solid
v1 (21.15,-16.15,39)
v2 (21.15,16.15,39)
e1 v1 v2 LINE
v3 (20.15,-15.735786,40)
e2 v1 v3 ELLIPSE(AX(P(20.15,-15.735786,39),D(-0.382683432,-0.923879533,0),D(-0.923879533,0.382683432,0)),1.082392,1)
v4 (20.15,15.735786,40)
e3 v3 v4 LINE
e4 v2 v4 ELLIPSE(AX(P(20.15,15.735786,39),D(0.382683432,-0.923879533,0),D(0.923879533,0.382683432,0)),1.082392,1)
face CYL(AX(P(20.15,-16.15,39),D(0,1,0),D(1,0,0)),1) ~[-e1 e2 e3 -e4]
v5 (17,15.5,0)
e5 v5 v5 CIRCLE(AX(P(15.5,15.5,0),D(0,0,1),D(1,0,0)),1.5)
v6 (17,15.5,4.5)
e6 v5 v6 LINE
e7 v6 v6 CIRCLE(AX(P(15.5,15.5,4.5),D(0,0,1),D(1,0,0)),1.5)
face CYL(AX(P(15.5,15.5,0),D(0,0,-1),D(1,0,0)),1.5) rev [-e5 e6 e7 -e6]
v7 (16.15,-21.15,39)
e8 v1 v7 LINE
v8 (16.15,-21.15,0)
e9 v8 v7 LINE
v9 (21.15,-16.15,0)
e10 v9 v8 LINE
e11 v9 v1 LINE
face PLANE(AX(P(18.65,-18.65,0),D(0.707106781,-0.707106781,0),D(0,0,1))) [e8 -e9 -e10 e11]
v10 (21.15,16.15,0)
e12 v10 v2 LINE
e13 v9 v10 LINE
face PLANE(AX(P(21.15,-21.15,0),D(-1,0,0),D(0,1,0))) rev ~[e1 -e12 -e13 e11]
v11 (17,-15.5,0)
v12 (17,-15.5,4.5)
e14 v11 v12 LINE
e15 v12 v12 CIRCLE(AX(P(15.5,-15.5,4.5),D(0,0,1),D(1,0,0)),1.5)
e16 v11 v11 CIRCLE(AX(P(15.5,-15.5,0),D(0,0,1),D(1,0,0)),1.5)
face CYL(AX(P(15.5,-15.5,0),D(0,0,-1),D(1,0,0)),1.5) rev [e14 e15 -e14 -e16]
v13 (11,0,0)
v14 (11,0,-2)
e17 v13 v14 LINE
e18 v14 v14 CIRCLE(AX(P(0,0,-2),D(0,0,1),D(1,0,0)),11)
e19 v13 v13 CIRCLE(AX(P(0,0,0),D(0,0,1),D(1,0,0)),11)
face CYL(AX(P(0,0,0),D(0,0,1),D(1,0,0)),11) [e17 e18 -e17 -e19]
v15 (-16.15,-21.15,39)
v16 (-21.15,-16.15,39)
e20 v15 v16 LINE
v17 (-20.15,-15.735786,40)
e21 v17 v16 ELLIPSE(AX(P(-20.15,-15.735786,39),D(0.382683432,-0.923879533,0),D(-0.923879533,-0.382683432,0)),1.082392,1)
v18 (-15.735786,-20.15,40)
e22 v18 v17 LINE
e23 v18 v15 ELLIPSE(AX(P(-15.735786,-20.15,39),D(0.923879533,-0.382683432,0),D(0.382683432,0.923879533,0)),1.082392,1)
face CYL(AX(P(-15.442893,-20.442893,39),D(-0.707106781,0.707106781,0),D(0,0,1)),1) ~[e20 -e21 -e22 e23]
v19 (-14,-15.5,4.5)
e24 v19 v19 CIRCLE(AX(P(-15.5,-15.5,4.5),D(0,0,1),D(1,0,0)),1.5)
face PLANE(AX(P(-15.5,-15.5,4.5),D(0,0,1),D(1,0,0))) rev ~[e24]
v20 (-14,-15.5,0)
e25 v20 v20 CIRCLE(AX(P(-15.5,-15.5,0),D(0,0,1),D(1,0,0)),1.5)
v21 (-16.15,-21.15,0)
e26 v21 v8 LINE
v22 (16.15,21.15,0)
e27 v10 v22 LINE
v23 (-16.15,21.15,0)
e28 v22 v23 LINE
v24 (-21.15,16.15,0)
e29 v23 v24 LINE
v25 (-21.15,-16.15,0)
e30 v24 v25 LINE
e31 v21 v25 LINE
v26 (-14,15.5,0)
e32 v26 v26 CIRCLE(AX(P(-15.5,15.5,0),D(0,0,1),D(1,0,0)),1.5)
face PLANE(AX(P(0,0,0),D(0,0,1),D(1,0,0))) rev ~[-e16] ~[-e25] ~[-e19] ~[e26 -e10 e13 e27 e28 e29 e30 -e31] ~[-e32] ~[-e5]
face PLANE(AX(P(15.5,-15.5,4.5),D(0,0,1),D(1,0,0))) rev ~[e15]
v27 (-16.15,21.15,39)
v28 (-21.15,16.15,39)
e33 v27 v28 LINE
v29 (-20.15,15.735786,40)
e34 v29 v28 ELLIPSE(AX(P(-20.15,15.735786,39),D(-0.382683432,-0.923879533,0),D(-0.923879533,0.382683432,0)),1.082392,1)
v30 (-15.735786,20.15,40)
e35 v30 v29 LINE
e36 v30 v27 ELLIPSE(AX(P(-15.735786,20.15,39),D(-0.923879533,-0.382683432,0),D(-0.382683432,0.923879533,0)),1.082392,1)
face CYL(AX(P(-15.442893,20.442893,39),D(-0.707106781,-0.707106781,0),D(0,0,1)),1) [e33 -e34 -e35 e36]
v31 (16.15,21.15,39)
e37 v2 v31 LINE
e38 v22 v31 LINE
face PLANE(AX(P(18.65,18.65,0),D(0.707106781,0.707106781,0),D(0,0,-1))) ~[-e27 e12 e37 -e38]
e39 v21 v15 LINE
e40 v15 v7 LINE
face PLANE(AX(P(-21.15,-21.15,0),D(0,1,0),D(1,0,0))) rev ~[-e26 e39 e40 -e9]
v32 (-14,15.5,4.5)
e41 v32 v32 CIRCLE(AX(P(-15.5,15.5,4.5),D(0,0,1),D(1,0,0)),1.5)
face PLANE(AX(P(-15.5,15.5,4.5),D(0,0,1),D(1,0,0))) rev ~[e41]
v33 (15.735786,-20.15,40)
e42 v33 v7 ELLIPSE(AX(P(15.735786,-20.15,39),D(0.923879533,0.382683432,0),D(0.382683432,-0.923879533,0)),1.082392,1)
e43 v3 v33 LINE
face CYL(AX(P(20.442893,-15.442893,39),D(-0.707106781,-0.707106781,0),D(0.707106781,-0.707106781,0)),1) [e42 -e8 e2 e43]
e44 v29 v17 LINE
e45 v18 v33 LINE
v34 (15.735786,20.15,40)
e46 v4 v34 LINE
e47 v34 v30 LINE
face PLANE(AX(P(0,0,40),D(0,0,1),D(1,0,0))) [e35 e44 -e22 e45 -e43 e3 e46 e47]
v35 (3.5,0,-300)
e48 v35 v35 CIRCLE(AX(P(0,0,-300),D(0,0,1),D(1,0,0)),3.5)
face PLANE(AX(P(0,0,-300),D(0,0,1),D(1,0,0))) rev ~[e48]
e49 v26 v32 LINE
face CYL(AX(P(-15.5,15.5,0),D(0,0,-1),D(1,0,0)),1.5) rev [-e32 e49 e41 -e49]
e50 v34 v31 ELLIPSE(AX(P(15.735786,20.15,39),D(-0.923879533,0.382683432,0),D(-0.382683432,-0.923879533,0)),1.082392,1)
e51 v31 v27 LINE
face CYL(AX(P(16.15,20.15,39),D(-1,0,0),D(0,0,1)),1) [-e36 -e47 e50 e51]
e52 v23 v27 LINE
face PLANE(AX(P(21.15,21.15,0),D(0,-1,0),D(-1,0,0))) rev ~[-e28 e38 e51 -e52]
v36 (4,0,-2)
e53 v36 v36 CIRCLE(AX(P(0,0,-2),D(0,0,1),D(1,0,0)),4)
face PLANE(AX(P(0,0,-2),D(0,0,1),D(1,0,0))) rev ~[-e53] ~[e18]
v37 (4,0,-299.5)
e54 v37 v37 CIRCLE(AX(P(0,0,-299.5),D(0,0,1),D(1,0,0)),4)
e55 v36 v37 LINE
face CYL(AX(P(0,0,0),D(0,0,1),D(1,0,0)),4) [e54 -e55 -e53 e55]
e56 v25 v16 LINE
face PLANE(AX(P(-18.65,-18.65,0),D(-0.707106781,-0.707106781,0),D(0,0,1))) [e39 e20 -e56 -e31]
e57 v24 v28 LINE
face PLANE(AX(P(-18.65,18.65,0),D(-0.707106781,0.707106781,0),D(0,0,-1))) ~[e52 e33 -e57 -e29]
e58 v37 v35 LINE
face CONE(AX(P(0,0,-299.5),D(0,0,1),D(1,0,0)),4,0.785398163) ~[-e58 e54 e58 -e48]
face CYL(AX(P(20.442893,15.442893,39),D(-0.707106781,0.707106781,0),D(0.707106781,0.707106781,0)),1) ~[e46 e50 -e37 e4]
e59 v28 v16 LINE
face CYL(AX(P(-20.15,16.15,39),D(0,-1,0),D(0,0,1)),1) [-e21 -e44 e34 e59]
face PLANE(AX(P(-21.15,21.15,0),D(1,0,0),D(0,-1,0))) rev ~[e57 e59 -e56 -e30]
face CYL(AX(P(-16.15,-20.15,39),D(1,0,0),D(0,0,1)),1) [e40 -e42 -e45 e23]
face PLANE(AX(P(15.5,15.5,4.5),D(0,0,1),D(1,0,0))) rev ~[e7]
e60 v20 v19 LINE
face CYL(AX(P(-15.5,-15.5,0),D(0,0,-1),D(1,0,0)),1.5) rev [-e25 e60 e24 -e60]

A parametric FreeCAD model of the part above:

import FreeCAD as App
import Part
import Sketcher

V = App.Vector
Q = App.Units.Quantity


def edges_at(feature, points):
    """Names of the edges that pass closest to the given points."""
    edges = feature.Shape.Edges
    near = lambda p: min(range(len(edges)), key=lambda i: edges[i].distToShape(Part.Vertex(*p))[0])
    return sorted({f"Edge{near(p) + 1}" for p in points})

doc = App.newDocument("Part")
body = doc.addObject("PartDesign::Body", "Body")

# Sketch on XY plane
sketch1 = body.newObject("Sketcher::SketchObject", "Sketch")
sketch1.AttachmentSupport = (doc.getObject("XY_Plane"), [""])
sketch1.MapMode = "FlatFace"
sketch1.addGeometry([
    Part.LineSegment(V(-21, -21, 0), V(21, -21, 0)),
    Part.LineSegment(V(21, -21, 0), V(21, 21, 0)),
    Part.LineSegment(V(21, 21, 0), V(-21, 21, 0)),
    Part.LineSegment(V(-21, 21, 0), V(-21, -21, 0)),
], False)
sketch1.addConstraint([
    Sketcher.Constraint("Coincident", 0, 2, 1, 1),
    Sketcher.Constraint("Coincident", 1, 2, 2, 1),
    Sketcher.Constraint("Coincident", 2, 2, 3, 1),
    Sketcher.Constraint("Coincident", 3, 2, 0, 1),
    Sketcher.Constraint("Horizontal", 0),
    Sketcher.Constraint("Vertical", 1),
    Sketcher.Constraint("Horizontal", 2),
    Sketcher.Constraint("Vertical", 3),
    Sketcher.Constraint("Symmetric", 0, 2, 2, 2, -1, 1),
    Sketcher.Constraint("Equal", 2, 1),
    Sketcher.Constraint("DistanceX", 0, 1, 0, 2, Q("42.3 mm")),
])
pad1 = body.newObject("PartDesign::Pad", "Pad")
pad1.Profile = sketch1
pad1.Length = 40

# Sketch on XY plane
sketch2 = body.newObject("Sketcher::SketchObject", "Sketch001")
sketch2.AttachmentSupport = (doc.getObject("XY_Plane"), [""])
sketch2.MapMode = "FlatFace"
sketch2.addGeometry(Part.Circle(V(0, 0, 0), V(0, 0, 1), 11), False)
sketch2.addConstraint([
    Sketcher.Constraint("Coincident", 0, 3, -1, 1),
    Sketcher.Constraint("Diameter", 0, Q("22 mm")),
])
pad2 = body.newObject("PartDesign::Pad", "Pad001")
pad2.Profile = sketch2
pad2.Length = 2
pad2.Reversed = True

# Sketch on XY plane
sketch3 = body.newObject("Sketcher::SketchObject", "Sketch002")
sketch3.AttachmentSupport = (doc.getObject("XY_Plane"), [""])
sketch3.MapMode = "FlatFace"
sketch3.addGeometry(Part.Circle(V(0, 0, 0), V(0, 0, 1), 4), False)
sketch3.addConstraint([
    Sketcher.Constraint("Coincident", 0, 3, -1, 1),
    Sketcher.Constraint("Diameter", 0, Q("8 mm")),
])
pad3 = body.newObject("PartDesign::Pad", "Pad002")
pad3.Profile = sketch3
pad3.Length = 300
pad3.Reversed = True

# Sketch on XY plane
sketch4 = body.newObject("Sketcher::SketchObject", "Sketch003")
sketch4.AttachmentSupport = (doc.getObject("XY_Plane"), [""])
sketch4.MapMode = "FlatFace"
sketch4.addGeometry([
    Part.Circle(V(15.5, 15.5, 0), V(0, 0, 1), 1.5),
    Part.Circle(V(-15.5, 15.5, 0), V(0, 0, 1), 1.5),
    Part.Circle(V(-15.5, -15.5, 0), V(0, 0, 1), 1.5),
    Part.Circle(V(15.5, -15.5, 0), V(0, 0, 1), 1.5),
], False)
sketch4.addConstraint([
    Sketcher.Constraint("Equal", 0, 1),
    Sketcher.Constraint("Equal", 1, 2),
    Sketcher.Constraint("Equal", 2, 3),
    Sketcher.Constraint("Symmetric", 0, 3, 2, 3, -1, 1),
    Sketcher.Constraint("Symmetric", 1, 3, 3, 3, -1, 1),
    Sketcher.Constraint("Symmetric", 0, 3, 1, 3, -2),
    Sketcher.Constraint("Diameter", 0, Q("3 mm")),
    Sketcher.Constraint("DistanceX", 1, 3, 0, 3, Q("31 mm")),
    Sketcher.Constraint("DistanceY", 2, 3, 1, 3, Q("31 mm")),
])
pocket1 = body.newObject("PartDesign::Pocket", "Pocket")
pocket1.Profile = sketch4
pocket1.Length = 4.5
pocket1.Reversed = True
doc.recompute()

chamfer = body.newObject("PartDesign::Chamfer", "Chamfer")
chamfer.Base = (pocket1, edges_at(pocket1, [
    (21.15, 21.15, 20),
    (-21.15, 21.15, 20),
    (-21.15, -21.15, 20),
    (21.15, -21.15, 20),
]))
chamfer.Size = 5
doc.recompute()

fillet = body.newObject("PartDesign::Fillet", "Fillet")
fillet.Base = (chamfer, edges_at(chamfer, [
    (0, 21.15, 40),
    (-18.65, 18.65, 40),
    (-21.15, 0, 40),
    (-18.65, -18.65, 40),
    (0, -21.15, 40),
    (18.65, -18.65, 40),
    (21.15, 0, 40),
    (18.65, 18.65, 40),
]))
fillet.Radius = 1
doc.recompute()

chamfer2 = body.newObject("PartDesign::Chamfer", "Chamfer001")
chamfer2.Base = (fillet, edges_at(fillet, [(-4, 0, -300)]))
chamfer2.Size = 0.5

doc.recompute()
